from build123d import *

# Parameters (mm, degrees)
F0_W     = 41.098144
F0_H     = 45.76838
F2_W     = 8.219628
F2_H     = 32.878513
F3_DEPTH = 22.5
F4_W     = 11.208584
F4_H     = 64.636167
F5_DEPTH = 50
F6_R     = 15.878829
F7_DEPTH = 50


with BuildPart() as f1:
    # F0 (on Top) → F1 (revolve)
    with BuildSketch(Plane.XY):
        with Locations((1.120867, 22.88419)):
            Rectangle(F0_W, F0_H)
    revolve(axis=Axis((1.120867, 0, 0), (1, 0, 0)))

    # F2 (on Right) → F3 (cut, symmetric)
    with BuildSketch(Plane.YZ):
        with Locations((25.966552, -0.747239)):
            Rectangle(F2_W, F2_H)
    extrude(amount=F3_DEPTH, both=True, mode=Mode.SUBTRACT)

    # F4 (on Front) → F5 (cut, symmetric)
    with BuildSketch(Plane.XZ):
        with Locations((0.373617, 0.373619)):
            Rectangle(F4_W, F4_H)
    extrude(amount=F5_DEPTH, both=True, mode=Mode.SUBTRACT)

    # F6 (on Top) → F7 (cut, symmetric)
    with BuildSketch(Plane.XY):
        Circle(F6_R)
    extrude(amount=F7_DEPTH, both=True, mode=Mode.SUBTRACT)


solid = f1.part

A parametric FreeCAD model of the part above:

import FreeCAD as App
import Part
import Sketcher
from FreeCAD import Vector
Q = App.Units.Quantity

doc = App.newDocument("Part")
body = doc.addObject("PartDesign::Body", "Body")

sketch1 = body.newObject("Sketcher::SketchObject", "Sketch")
sketch1.AttachmentSupport = (doc.getObject("XY_Plane"), [""])
sketch1.MapMode = "FlatFace"
sketch1.addGeometry(Part.LineSegment(Vector(-19, 46, 0), Vector(-19, 0, 0)), False)
sketch1.addGeometry(Part.LineSegment(Vector(-19, 0, 0), Vector(22, 0, 0)), False)
sketch1.addGeometry(Part.LineSegment(Vector(22, 0, 0), Vector(22, 46, 0)), False)
sketch1.addGeometry(Part.LineSegment(Vector(22, 46, 0), Vector(-19, 46, 0)), False)
sketch1.addConstraint(Sketcher.Constraint("Coincident", 0, 2, 1, 1))
sketch1.addConstraint(Sketcher.Constraint("Coincident", 1, 2, 2, 1))
sketch1.addConstraint(Sketcher.Constraint("Coincident", 2, 2, 3, 1))
sketch1.addConstraint(Sketcher.Constraint("Coincident", 3, 2, 0, 1))
sketch1.addConstraint(Sketcher.Constraint("Vertical", 0))
sketch1.addConstraint(Sketcher.Constraint("Horizontal", 1))
sketch1.addConstraint(Sketcher.Constraint("Vertical", 2))
sketch1.addConstraint(Sketcher.Constraint("Horizontal", 3))
sketch1.addConstraint(Sketcher.Constraint("PointOnObject", 0, 2, -1))
sketch1.addConstraint(Sketcher.Constraint("DistanceY", 0, 2, 0, 1, Q("45.76838 mm")))
sketch1.addConstraint(Sketcher.Constraint("DistanceX", 1, 1, 1, 2, Q("41.098144 mm")))
sketch1.addConstraint(Sketcher.Constraint("DistanceX", -1, 1, 1, 2, Q("21.669939 mm")))
revolution = body.newObject("PartDesign::Revolution", "Revolution")
revolution.Profile = sketch1
revolution.ReferenceAxis = (sketch1, ["H_Axis"])
revolution.Angle = 360

sketch2 = body.newObject("Sketcher::SketchObject", "Sketch001")
sketch2.AttachmentSupport = (doc.getObject("YZ_Plane"), [""])
sketch2.MapMode = "FlatFace"
sketch2.addGeometry(Part.LineSegment(Vector(22, 16, 0), Vector(22, -17, 0)), False)
sketch2.addGeometry(Part.LineSegment(Vector(22, -17, 0), Vector(30, -17, 0)), False)
sketch2.addGeometry(Part.LineSegment(Vector(30, -17, 0), Vector(30, 16, 0)), False)
sketch2.addGeometry(Part.LineSegment(Vector(30, 16, 0), Vector(22, 16, 0)), False)
sketch2.addConstraint(Sketcher.Constraint("Coincident", 0, 2, 1, 1))
sketch2.addConstraint(Sketcher.Constraint("Coincident", 1, 2, 2, 1))
sketch2.addConstraint(Sketcher.Constraint("Coincident", 2, 2, 3, 1))
sketch2.addConstraint(Sketcher.Constraint("Coincident", 3, 2, 0, 1))
sketch2.addConstraint(Sketcher.Constraint("Vertical", 0))
sketch2.addConstraint(Sketcher.Constraint("Horizontal", 1))
sketch2.addConstraint(Sketcher.Constraint("Vertical", 2))
sketch2.addConstraint(Sketcher.Constraint("Horizontal", 3))
sketch2.addConstraint(Sketcher.Constraint("DistanceX", 1, 1, 1, 2, Q("8.219628 mm")))
sketch2.addConstraint(Sketcher.Constraint("DistanceY", 0, 2, 0, 1, Q("32.878513 mm")))
sketch2.addConstraint(Sketcher.Constraint("DistanceX", -1, 1, 0, 2, Q("21.856738 mm")))
sketch2.addConstraint(Sketcher.Constraint("DistanceY", 0, 2, -1, 1, Q("17.186495 mm")))
pocket1 = body.newObject("PartDesign::Pocket", "Pocket")
pocket1.Profile = sketch2
pocket1.Length = 45
pocket1.Midplane = True

sketch3 = body.newObject("Sketcher::SketchObject", "Sketch002")
sketch3.AttachmentSupport = (doc.getObject("XZ_Plane"), [""])
sketch3.MapMode = "FlatFace"
sketch3.addGeometry(Part.LineSegment(Vector(-5, 33, 0), Vector(-5, -32, 0)), False)
sketch3.addGeometry(Part.LineSegment(Vector(-5, -32, 0), Vector(6, -32, 0)), False)
sketch3.addGeometry(Part.LineSegment(Vector(6, -32, 0), Vector(6, 33, 0)), False)
sketch3.addGeometry(Part.LineSegment(Vector(6, 33, 0), Vector(-5, 33, 0)), False)
sketch3.addConstraint(Sketcher.Constraint("Coincident", 0, 2, 1, 1))
sketch3.addConstraint(Sketcher.Constraint("Coincident", 1, 2, 2, 1))
sketch3.addConstraint(Sketcher.Constraint("Coincident", 2, 2, 3, 1))
sketch3.addConstraint(Sketcher.Constraint("Coincident", 3, 2, 0, 1))
sketch3.addConstraint(Sketcher.Constraint("Vertical", 0))
sketch3.addConstraint(Sketcher.Constraint("Horizontal", 1))
sketch3.addConstraint(Sketcher.Constraint("Vertical", 2))
sketch3.addConstraint(Sketcher.Constraint("Horizontal", 3))
sketch3.addConstraint(Sketcher.Constraint("DistanceX", 1, 1, 1, 2, Q("11.208584 mm")))
sketch3.addConstraint(Sketcher.Constraint("DistanceY", 0, 2, 0, 1, Q("64.636167 mm")))
sketch3.addConstraint(Sketcher.Constraint("DistanceX", -1, 1, 1, 2, Q("5.977909 mm")))
sketch3.addConstraint(Sketcher.Constraint("DistanceY", 0, 2, -1, 1, Q("31.944464 mm")))
pocket2 = body.newObject("PartDesign::Pocket", "Pocket001")
pocket2.Profile = sketch3
pocket2.Length = 100
pocket2.Midplane = True

sketch4 = body.newObject("Sketcher::SketchObject", "Sketch003")
sketch4.AttachmentSupport = (doc.getObject("XY_Plane"), [""])
sketch4.MapMode = "FlatFace"
sketch4.addGeometry(Part.Circle(Vector(0, 0, 0), Vector(0, 0, 1), 16), False)
sketch4.addConstraint(Sketcher.Constraint("Coincident", 0, 3, -1, 1))
sketch4.addConstraint(Sketcher.Constraint("Diameter", 0, Q("31.757658 mm")))
pocket3 = body.newObject("PartDesign::Pocket", "Pocket002")
pocket3.Profile = sketch4
pocket3.Length = 100
pocket3.Midplane = True

doc.recompute()
